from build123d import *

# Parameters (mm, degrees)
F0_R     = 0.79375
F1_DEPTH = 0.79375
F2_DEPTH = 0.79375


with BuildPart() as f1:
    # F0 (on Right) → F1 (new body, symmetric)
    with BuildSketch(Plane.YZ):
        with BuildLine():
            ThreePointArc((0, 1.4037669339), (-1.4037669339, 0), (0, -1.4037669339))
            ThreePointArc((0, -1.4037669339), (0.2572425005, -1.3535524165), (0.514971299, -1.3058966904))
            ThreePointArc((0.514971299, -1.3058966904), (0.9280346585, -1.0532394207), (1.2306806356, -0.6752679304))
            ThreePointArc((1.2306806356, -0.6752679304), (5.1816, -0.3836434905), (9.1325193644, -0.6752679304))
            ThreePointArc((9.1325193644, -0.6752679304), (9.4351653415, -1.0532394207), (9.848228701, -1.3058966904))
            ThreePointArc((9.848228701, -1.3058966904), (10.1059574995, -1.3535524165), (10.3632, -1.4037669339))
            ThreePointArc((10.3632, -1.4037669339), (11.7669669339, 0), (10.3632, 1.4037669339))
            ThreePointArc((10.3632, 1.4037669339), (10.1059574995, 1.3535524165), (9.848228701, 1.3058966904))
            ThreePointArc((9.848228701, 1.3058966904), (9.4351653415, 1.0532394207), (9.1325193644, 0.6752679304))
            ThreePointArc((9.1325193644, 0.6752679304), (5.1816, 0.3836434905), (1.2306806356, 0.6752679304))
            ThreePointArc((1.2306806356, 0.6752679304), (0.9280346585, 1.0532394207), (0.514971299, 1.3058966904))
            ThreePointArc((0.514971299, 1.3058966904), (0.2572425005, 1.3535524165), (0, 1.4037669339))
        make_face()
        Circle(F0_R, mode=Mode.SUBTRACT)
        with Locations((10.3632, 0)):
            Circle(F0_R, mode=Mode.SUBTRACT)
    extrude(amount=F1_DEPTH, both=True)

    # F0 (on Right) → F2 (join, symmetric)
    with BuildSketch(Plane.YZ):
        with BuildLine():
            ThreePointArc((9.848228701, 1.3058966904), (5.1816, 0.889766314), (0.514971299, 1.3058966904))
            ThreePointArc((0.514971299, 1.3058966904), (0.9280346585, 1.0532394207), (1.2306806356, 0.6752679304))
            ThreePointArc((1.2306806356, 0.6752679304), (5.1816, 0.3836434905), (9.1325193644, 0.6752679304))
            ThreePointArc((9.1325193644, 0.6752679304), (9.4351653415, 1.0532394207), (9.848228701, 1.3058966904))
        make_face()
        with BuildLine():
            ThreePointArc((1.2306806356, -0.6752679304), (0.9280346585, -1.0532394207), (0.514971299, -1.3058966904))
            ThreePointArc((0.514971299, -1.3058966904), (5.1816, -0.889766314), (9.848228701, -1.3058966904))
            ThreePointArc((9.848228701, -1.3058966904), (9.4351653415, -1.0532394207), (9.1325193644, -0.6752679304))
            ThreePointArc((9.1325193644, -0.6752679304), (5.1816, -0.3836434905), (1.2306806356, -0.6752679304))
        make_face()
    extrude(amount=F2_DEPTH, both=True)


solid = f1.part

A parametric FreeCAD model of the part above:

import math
import FreeCAD as App
import Part
import Sketcher
Q = App.Units.Quantity

doc = App.newDocument("Part")
body = doc.addObject("PartDesign::Body", "Body")

# Sketch on YZ plane
sketch1 = body.newObject("Sketcher::SketchObject", "Sketch")
sketch1.AttachmentSupport = (doc.getObject("YZ_Plane"), [""])
sketch1.MapMode = "FlatFace"
sketch1.addGeometry([
    Part.ArcOfCircle(Part.Circle(App.Vector(0, 0, 0), App.Vector(0, 0, 1), 1.4), math.radians(90), math.radians(270)),  # 0
    Part.ArcOfCircle(Part.Circle(App.Vector(5.2, -27.3, 0), App.Vector(0, 0, 1), 26.4), math.radians(100.19), math.radians(101.33)),  # 1
    Part.ArcOfCircle(Part.Circle(App.Vector(0, 0, 0), App.Vector(0, 0, 1), 1.4), math.radians(-68), math.radians(-29)),  # 2
    Part.ArcOfCircle(Part.Circle(App.Vector(5.2, -27.3, 0), App.Vector(0, 0, 1), 26.9), math.radians(81.56), math.radians(98.44)),  # 3
    Part.ArcOfCircle(Part.Circle(App.Vector(10.4, 0, 0), App.Vector(0, 0, 1), 1.4), math.radians(-151), math.radians(-112)),  # 4
    Part.ArcOfCircle(Part.Circle(App.Vector(5.2, -27.3, 0), App.Vector(0, 0, 1), 26.4), math.radians(78.67), math.radians(79.81)),  # 5
    Part.ArcOfCircle(Part.Circle(App.Vector(10.4, 0, 0), App.Vector(0, 0, 1), 1.4), math.radians(-90), math.radians(90)),  # 6
    Part.ArcOfCircle(Part.Circle(App.Vector(5.2, 27.3, 0), App.Vector(0, 0, 1), 26.4), math.radians(-79.81), math.radians(-78.67)),  # 7
    Part.ArcOfCircle(Part.Circle(App.Vector(10.4, 0, 0), App.Vector(0, 0, 1), 1.4), math.radians(112), math.radians(151)),  # 8
    Part.ArcOfCircle(Part.Circle(App.Vector(5.2, 27.3, 0), App.Vector(0, 0, 1), 26.9), math.radians(-98.44), math.radians(-81.56)),  # 9
    Part.ArcOfCircle(Part.Circle(App.Vector(0, 0, 0), App.Vector(0, 0, 1), 1.4), math.radians(29), math.radians(68)),  # 10
    Part.ArcOfCircle(Part.Circle(App.Vector(5.2, 27.3, 0), App.Vector(0, 0, 1), 26.4), math.radians(-101.33), math.radians(-100.19)),  # 11
    Part.Circle(App.Vector(0, 0, 0), App.Vector(0, 0, 1), 0.8),  # 12
    Part.Circle(App.Vector(10.4, 0, 0), App.Vector(0, 0, 1), 0.8),  # 13
], False)
sketch1.addConstraint([
    Sketcher.Constraint("Coincident", 0, 2, 1, 2),
    Sketcher.Constraint("Coincident", 1, 1, 2, 1),
    Sketcher.Constraint("Coincident", 2, 2, 3, 2),
    Sketcher.Constraint("Coincident", 3, 1, 4, 1),
    Sketcher.Constraint("Coincident", 4, 2, 5, 2),
    Sketcher.Constraint("Coincident", 5, 1, 6, 1),
    Sketcher.Constraint("Coincident", 6, 2, 7, 2),
    Sketcher.Constraint("Coincident", 7, 1, 8, 1),
    Sketcher.Constraint("Coincident", 8, 2, 9, 2),
    Sketcher.Constraint("Coincident", 9, 1, 10, 1),
    Sketcher.Constraint("Coincident", 10, 2, 11, 2),
    Sketcher.Constraint("Coincident", 11, 1, 0, 1),
    Sketcher.Constraint("Coincident", 0, 3, -1, 1),
    Sketcher.Constraint("Coincident", 2, 3, -1, 1),
    Sketcher.Constraint("Coincident", 10, 3, -1, 1),
    Sketcher.Constraint("Coincident", 12, 3, -1, 1),
    Sketcher.Constraint("Coincident", 5, 3, 1, 3),
    Sketcher.Constraint("Coincident", 6, 3, 4, 3),
    Sketcher.Constraint("Coincident", 8, 3, 4, 3),
    Sketcher.Constraint("Coincident", 11, 3, 7, 3),
    Sketcher.Constraint("Coincident", 13, 3, 4, 3),
    Sketcher.Constraint("Equal", 0, 2),
    Sketcher.Constraint("Equal", 2, 4),
    Sketcher.Constraint("Equal", 1, 5),
    Sketcher.Constraint("Equal", 4, 6),
    Sketcher.Constraint("Equal", 5, 7),
    Sketcher.Constraint("Equal", 6, 8),
    Sketcher.Constraint("Equal", 3, 9),
    Sketcher.Constraint("Equal", 8, 10),
    Sketcher.Constraint("Equal", 7, 11),
    Sketcher.Constraint("Equal", 12, 13),
    Sketcher.Constraint("Symmetric", 1, 3, 7, 3, -1),
    Sketcher.Constraint("Symmetric", 3, 3, 9, 3, -1),
    Sketcher.Constraint("PointOnObject", 4, 3, -1),
    Sketcher.Constraint("PointOnObject", 0, 2, -2),
    Sketcher.Constraint("Horizontal", 2, 2, 3, 1),
    Sketcher.Constraint("Horizontal", 1, 1, 4, 2),
    Sketcher.Constraint("Diameter", 12, Q("0.0625 in")),
    Sketcher.Constraint("DistanceX", -1, 1, 1, 3, Q("0.204 in")),
    Sketcher.Constraint("Radius", 1, Q("26.374651 mm")),
    Sketcher.Constraint("Radius", 0, Q("1.403767 mm")),
    Sketcher.Constraint("Radius", 3, Q("26.909282 mm")),
    Sketcher.Constraint("DistanceX", -1, 1, 2, 2, Q("1.230681 mm")),
])
pad1 = body.newObject("PartDesign::Pad", "Pad")
pad1.Profile = sketch1
pad1.Length = Q("0.0625 in")
pad1.Midplane = True

# Sketch on YZ plane
sketch2 = body.newObject("Sketcher::SketchObject", "Sketch001")
sketch2.AttachmentSupport = (doc.getObject("YZ_Plane"), [""])
sketch2.MapMode = "FlatFace"
sketch2.addGeometry([
    Part.ArcOfCircle(Part.Circle(App.Vector(5.2, 27.3, 0), App.Vector(0, 0, 1), 26.4), math.radians(-100), math.radians(-80)),  # 0
    Part.ArcOfCircle(Part.Circle(App.Vector(0, 0, 0), App.Vector(0, 0, 1), 1.4), math.radians(29), math.radians(68)),  # 1
    Part.ArcOfCircle(Part.Circle(App.Vector(5.2, 27.3, 0), App.Vector(0, 0, 1), 26.9), math.radians(-98.44), math.radians(-81.56)),  # 2
    Part.ArcOfCircle(Part.Circle(App.Vector(10.4, 0, 0), App.Vector(0, 0, 1), 1.4), math.radians(112), math.radians(151)),  # 3
    Part.ArcOfCircle(Part.Circle(App.Vector(0, 0, 0), App.Vector(0, 0, 1), 1.4), math.radians(-68), math.radians(-29)),  # 4
    Part.ArcOfCircle(Part.Circle(App.Vector(5.2, -27.3, 0), App.Vector(0, 0, 1), 26.4), math.radians(80), math.radians(100)),  # 5
    Part.ArcOfCircle(Part.Circle(App.Vector(10.4, 0, 0), App.Vector(0, 0, 1), 1.4), math.radians(-151), math.radians(-112)),  # 6
    Part.ArcOfCircle(Part.Circle(App.Vector(5.2, -27.3, 0), App.Vector(0, 0, 1), 26.9), math.radians(81.56), math.radians(98.44)),  # 7
], False)
sketch2.addConstraint([
    Sketcher.Constraint("Coincident", 0, 1, 1, 2),
    Sketcher.Constraint("Coincident", 1, 1, 2, 1),
    Sketcher.Constraint("Coincident", 2, 2, 3, 2),
    Sketcher.Constraint("Coincident", 3, 1, 0, 2),
    Sketcher.Constraint("Coincident", 4, 1, 5, 2),
    Sketcher.Constraint("Coincident", 5, 1, 6, 2),
    Sketcher.Constraint("Coincident", 6, 1, 7, 1),
    Sketcher.Constraint("Coincident", 7, 2, 4, 2),
    Sketcher.Constraint("Coincident", 1, 3, -1, 1),
    Sketcher.Constraint("Coincident", 4, 3, -1, 1),
    Sketcher.Constraint("Coincident", 6, 3, 3, 3),
    Sketcher.Constraint("Equal", 1, 3),
    Sketcher.Constraint("Equal", 3, 4),
    Sketcher.Constraint("Equal", 0, 5),
    Sketcher.Constraint("Equal", 4, 6),
    Sketcher.Constraint("Equal", 2, 7),
    Sketcher.Constraint("Symmetric", 0, 3, 5, 3, -1),
    Sketcher.Constraint("Symmetric", 2, 3, 7, 3, -1),
    Sketcher.Constraint("PointOnObject", 3, 3, -1),
    Sketcher.Constraint("Horizontal", 1, 1, 2, 2),
    Sketcher.Constraint("Horizontal", 0, 1, 3, 1),
    Sketcher.Constraint("DistanceX", -1, 1, 0, 3, Q("0.204 in")),
    Sketcher.Constraint("Radius", 0, Q("26.374652 mm")),
    Sketcher.Constraint("Radius", 1, Q("1.403767 mm")),
    Sketcher.Constraint("Radius", 2, Q("26.909282 mm")),
    Sketcher.Constraint("DistanceY", -1, 1, 0, 3, Q("27.264419 mm")),
    Sketcher.Constraint("DistanceX", -1, 1, 1, 1, Q("1.230681 mm")),
])
pad2 = body.newObject("PartDesign::Pad", "Pad001")
pad2.Profile = sketch2
pad2.Length = Q("0.0625 in")
pad2.Midplane = True

doc.recompute()
